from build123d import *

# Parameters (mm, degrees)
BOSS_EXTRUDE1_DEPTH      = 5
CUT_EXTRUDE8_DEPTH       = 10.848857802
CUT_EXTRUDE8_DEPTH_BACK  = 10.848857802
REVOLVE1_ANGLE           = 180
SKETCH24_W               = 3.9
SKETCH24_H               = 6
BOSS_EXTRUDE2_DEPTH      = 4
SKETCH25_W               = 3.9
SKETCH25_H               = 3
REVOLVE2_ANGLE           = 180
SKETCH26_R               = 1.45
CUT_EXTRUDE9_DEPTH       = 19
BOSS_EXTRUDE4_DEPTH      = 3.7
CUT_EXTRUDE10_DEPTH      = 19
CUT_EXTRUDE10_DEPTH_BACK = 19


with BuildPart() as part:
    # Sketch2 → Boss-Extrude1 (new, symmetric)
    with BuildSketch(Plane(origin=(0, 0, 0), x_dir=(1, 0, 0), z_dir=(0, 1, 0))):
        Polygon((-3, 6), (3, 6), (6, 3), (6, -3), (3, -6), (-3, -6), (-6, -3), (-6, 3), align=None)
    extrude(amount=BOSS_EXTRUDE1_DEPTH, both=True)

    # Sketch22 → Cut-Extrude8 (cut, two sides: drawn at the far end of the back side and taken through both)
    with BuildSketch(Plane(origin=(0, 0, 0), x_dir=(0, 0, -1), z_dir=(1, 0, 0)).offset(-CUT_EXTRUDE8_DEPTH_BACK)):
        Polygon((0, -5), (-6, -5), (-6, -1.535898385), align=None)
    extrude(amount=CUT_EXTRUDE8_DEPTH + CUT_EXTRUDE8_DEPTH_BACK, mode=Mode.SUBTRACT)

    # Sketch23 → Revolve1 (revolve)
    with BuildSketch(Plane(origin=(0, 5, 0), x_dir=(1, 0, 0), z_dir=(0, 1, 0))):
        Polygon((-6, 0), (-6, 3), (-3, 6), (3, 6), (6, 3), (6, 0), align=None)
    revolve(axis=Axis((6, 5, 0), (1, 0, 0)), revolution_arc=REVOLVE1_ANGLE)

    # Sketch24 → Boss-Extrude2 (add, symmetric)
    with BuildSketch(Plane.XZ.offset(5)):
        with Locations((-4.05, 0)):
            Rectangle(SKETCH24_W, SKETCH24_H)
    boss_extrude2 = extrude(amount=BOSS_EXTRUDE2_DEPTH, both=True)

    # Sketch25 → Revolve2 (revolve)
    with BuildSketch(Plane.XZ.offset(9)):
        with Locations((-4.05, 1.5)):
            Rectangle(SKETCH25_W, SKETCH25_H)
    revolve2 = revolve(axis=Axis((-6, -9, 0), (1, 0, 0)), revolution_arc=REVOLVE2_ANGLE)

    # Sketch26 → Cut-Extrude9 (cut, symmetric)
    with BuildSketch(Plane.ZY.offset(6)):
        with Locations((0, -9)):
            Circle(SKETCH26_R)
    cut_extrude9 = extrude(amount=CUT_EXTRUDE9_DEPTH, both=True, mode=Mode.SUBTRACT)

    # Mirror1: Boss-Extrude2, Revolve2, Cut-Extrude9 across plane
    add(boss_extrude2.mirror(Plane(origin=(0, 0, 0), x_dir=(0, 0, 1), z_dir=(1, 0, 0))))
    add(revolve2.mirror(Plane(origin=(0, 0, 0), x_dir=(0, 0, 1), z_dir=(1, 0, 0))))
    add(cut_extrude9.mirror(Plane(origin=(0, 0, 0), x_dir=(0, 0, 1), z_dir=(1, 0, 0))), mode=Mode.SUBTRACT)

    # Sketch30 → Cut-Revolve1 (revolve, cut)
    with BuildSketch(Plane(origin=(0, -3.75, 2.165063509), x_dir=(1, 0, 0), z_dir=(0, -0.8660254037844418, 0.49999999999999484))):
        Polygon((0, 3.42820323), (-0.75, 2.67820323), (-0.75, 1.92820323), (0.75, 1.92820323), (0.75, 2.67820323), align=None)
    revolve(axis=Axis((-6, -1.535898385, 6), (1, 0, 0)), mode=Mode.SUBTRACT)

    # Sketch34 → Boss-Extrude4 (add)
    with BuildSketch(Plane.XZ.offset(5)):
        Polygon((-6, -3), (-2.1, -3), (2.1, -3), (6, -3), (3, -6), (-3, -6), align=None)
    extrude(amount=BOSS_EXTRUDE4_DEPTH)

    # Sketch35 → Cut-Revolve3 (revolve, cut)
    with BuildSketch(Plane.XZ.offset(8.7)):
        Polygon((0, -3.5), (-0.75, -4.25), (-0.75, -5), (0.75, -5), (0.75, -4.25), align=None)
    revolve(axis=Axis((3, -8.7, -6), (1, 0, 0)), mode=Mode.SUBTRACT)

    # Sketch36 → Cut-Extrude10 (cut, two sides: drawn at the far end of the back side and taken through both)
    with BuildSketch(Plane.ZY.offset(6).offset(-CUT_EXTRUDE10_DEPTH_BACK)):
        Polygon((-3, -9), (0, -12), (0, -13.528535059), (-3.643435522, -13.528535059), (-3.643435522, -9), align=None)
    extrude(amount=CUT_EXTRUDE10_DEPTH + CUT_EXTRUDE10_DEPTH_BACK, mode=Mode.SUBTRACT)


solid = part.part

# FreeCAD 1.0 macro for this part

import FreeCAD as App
import Part
import Sketcher

V = App.Vector
Q = App.Units.Quantity


def add_polygon(sketch, points):
    """Adds a closed chain of lines whose ends are joined by coincident constraints."""
    first, n = sketch.GeometryCount, len(points)
    for a, b in zip(points, points[1:] + points[:1]):
        sketch.addGeometry(Part.LineSegment(App.Vector(*a, 0), App.Vector(*b, 0)), False)
    for i in range(n):
        sketch.addConstraint(Sketcher.Constraint("Coincident", first + i, 2, first + (i + 1) % n, 1))

doc = App.newDocument("Part")
params = doc.addObject("Spreadsheet::Sheet", "Params")
for row, (alias, value) in enumerate([
    ("sketch1_width", "6 mm"),
    ("pad1_length", "10 mm"),
    ("sketch2_height", "6 mm"),
    ("sketch3_width", "12 mm"),
    ("sketch3_width2", "6 mm"),
    ("sketch3_height", "3 mm"),
    ("revolution_angle", "180 deg"),
    ("sketch4_height", "6 mm"),
    ("sketch4_width", "3.9 mm"),
    ("pad2_length", "8 mm"),
    ("sketch5_height", "3 mm"),
    ("sketch5_width", "3.9 mm"),
    ("revolution2_angle", "180 deg"),
    ("sketch6_diameter", "2.9 mm"),
    ("pocket2_length", "38 mm"),
    ("sketch7_width", "1.5 mm"),
    ("sketch7_height", "0.75 mm"),
    ("groove_angle", "360 deg"),
    ("sketch8_width", "12 mm"),
    ("sketch8_width2", "6 mm"),
    ("pad3_length", "3.7 mm"),
    ("sketch9_width", "1.5 mm"),
    ("sketch9_height", "0.75 mm"),
    ("groove2_angle", "360 deg"),
], start=1):
    params.set(f"A{row}", alias)
    params.set(f"B{row}", "=" + value)
    params.setAlias(f"B{row}", alias)

body = doc.addObject("PartDesign::Body", "Body")

sketch1 = doc.addObject("Sketcher::SketchObject", "Sketch")
body.addObject(sketch1)
sketch1.AttachmentSupport = (doc.XZ_Plane, [""])
sketch1.MapMode = "FlatFace"
add_polygon(sketch1, [(3, -6), (-3, -6), (-6, -3), (-6, 3), (-3, 6), (3, 6), (6, 3), (6, -3)])
sketch1.addConstraint(Sketcher.Constraint("Horizontal", 0))
sketch1.addConstraint(Sketcher.Constraint("Vertical", 2))
sketch1.addConstraint(Sketcher.Constraint("Horizontal", 4))
sketch1.addConstraint(Sketcher.Constraint("Vertical", 6))
sketch1.addConstraint(Sketcher.Constraint("Symmetric", 0, 2, 4, 2, -1, 1))
sketch1.addConstraint(Sketcher.Constraint("Symmetric", 1, 2, 5, 2, -1, 1))
sketch1.addConstraint(Sketcher.Constraint("Perpendicular", 1, 3))
sketch1.addConstraint(Sketcher.Constraint("Perpendicular", 5, 7))
sketch1.addConstraint(Sketcher.Constraint("Horizontal", 2, 2, 5, 2))
sketch1.addConstraint(Sketcher.Constraint("Horizontal", 1, 2, 6, 2))
sketch1.addConstraint(Sketcher.Constraint("Vertical", 0, 2, 3, 2))
sketch1.addConstraint(Sketcher.Constraint("Equal", 4, 2))
sketch1.addConstraint(Sketcher.Constraint("DistanceX", 0, 2, 0, 1, Q("6 mm")))
sketch1.addConstraint(Sketcher.Constraint("DistanceY", 0, 2, -1, 1, Q("6 mm")))
sketch1.setExpression("Constraints[20]", "Params.sketch1_width")
pad1 = doc.addObject("PartDesign::Pad", "Pad")
body.addObject(pad1)
pad1.Profile = sketch1
pad1.setExpression("Length", "Params.pad1_length")
pad1.Midplane = True

sketch2 = doc.addObject("Sketcher::SketchObject", "Sketch001")
body.addObject(sketch2)
sketch2.AttachmentSupport = (doc.YZ_Plane, [""])
sketch2.MapMode = "FlatFace"
add_polygon(sketch2, [(-5, 6), (-5, 0), (-1.535898, 6)])
sketch2.addConstraint(Sketcher.Constraint("Vertical", 0))
sketch2.addConstraint(Sketcher.Constraint("Horizontal", 2))
sketch2.addConstraint(Sketcher.Constraint("PointOnObject", 0, 2, -1))
sketch2.addConstraint(Sketcher.Constraint("DistanceY", 0, 2, 0, 1, Q("6 mm")))
sketch2.addConstraint(Sketcher.Constraint("Angle", 1, Q("60 deg")))
sketch2.addConstraint(Sketcher.Constraint("DistanceX", 0, 2, -1, 1, Q("5 mm")))
sketch2.setExpression("Constraints[6]", "Params.sketch2_height")
pocket1 = doc.addObject("PartDesign::Pocket", "Pocket")
body.addObject(pocket1)
pocket1.Profile = sketch2
pocket1.Type = "ThroughAll"
pocket1.Midplane = True

sketch3 = doc.addObject("Sketcher::SketchObject", "Sketch002")
body.addObject(sketch3)
sketch3.AttachmentSupport = (doc.XZ_Plane, [""])
sketch3.MapMode = "FlatFace"
sketch3.AttachmentOffset = App.Placement(V(0, 0, -5), App.Rotation())
add_polygon(sketch3, [(-6, -3), (-6, 0), (6, 0), (6, -3), (3, -6), (-3, -6)])
sketch3.addConstraint(Sketcher.Constraint("Vertical", 0))
sketch3.addConstraint(Sketcher.Constraint("Horizontal", 1))
sketch3.addConstraint(Sketcher.Constraint("Vertical", 2))
sketch3.addConstraint(Sketcher.Constraint("Horizontal", 4))
sketch3.addConstraint(Sketcher.Constraint("Symmetric", 0, 2, 1, 2, -1, 1))
sketch3.addConstraint(Sketcher.Constraint("Perpendicular", 3, 5))
sketch3.addConstraint(Sketcher.Constraint("Horizontal", 2, 2, 5, 2))
sketch3.addConstraint(Sketcher.Constraint("Equal", 3, 5))
sketch3.addConstraint(Sketcher.Constraint("DistanceX", 1, 1, 1, 2, Q("12 mm")))
sketch3.addConstraint(Sketcher.Constraint("DistanceX", 4, 2, 4, 1, Q("6 mm")))
sketch3.addConstraint(Sketcher.Constraint("DistanceY", 0, 1, 0, 2, Q("3 mm")))
sketch3.setExpression("Constraints[14]", "Params.sketch3_width")
sketch3.setExpression("Constraints[15]", "Params.sketch3_width2")
sketch3.setExpression("Constraints[16]", "Params.sketch3_height")
revolution = doc.addObject("PartDesign::Revolution", "Revolution")
body.addObject(revolution)
revolution.Profile = sketch3
revolution.ReferenceAxis = (sketch3, ["H_Axis"])
revolution.setExpression("Angle", "Params.revolution_angle")

sketch4 = doc.addObject("Sketcher::SketchObject", "Sketch003")
body.addObject(sketch4)
sketch4.AttachmentSupport = (doc.XZ_Plane, [""])
sketch4.MapMode = "FlatFace"
sketch4.AttachmentOffset = App.Placement(V(0, 0, 5), App.Rotation())
add_polygon(sketch4, [(-6, 3), (-6, -3), (-2.1, -3), (-2.1, 3)])
sketch4.addConstraint(Sketcher.Constraint("Vertical", 0))
sketch4.addConstraint(Sketcher.Constraint("Horizontal", 1))
sketch4.addConstraint(Sketcher.Constraint("Vertical", 2))
sketch4.addConstraint(Sketcher.Constraint("Horizontal", 3))
sketch4.addConstraint(Sketcher.Constraint("DistanceY", 0, 2, 0, 1, Q("6 mm")))
sketch4.addConstraint(Sketcher.Constraint("DistanceX", 1, 1, 1, 2, Q("3.9 mm")))
sketch4.addConstraint(Sketcher.Constraint("DistanceX", 0, 2, -1, 1, Q("6 mm")))
sketch4.addConstraint(Sketcher.Constraint("DistanceY", 0, 2, -1, 1, Q("3 mm")))
sketch4.setExpression("Constraints[8]", "Params.sketch4_height")
sketch4.setExpression("Constraints[9]", "Params.sketch4_width")
pad2 = doc.addObject("PartDesign::Pad", "Pad001")
body.addObject(pad2)
pad2.Profile = sketch4
pad2.setExpression("Length", "Params.pad2_length")
pad2.Midplane = True

sketch5 = doc.addObject("Sketcher::SketchObject", "Sketch004")
body.addObject(sketch5)
sketch5.AttachmentSupport = (doc.XZ_Plane, [""])
sketch5.MapMode = "FlatFace"
sketch5.AttachmentOffset = App.Placement(V(0, 0, 9), App.Rotation())
add_polygon(sketch5, [(-6, 3), (-6, 0), (-2.1, 0), (-2.1, 3)])
sketch5.addConstraint(Sketcher.Constraint("Vertical", 0))
sketch5.addConstraint(Sketcher.Constraint("Horizontal", 1))
sketch5.addConstraint(Sketcher.Constraint("Vertical", 2))
sketch5.addConstraint(Sketcher.Constraint("Horizontal", 3))
sketch5.addConstraint(Sketcher.Constraint("PointOnObject", 0, 2, -1))
sketch5.addConstraint(Sketcher.Constraint("DistanceY", 0, 2, 0, 1, Q("3 mm")))
sketch5.addConstraint(Sketcher.Constraint("DistanceX", 1, 1, 1, 2, Q("3.9 mm")))
sketch5.addConstraint(Sketcher.Constraint("DistanceX", 0, 2, -1, 1, Q("6 mm")))
sketch5.setExpression("Constraints[9]", "Params.sketch5_height")
sketch5.setExpression("Constraints[10]", "Params.sketch5_width")
revolution2 = doc.addObject("PartDesign::Revolution", "Revolution001")
body.addObject(revolution2)
revolution2.Profile = sketch5
revolution2.ReferenceAxis = (sketch5, ["H_Axis"])
revolution2.setExpression("Angle", "Params.revolution2_angle")

sketch6 = doc.addObject("Sketcher::SketchObject", "Sketch005")
body.addObject(sketch6)
sketch6.AttachmentSupport = (doc.YZ_Plane, [""])
sketch6.MapMode = "FlatFace"
sketch6.AttachmentOffset = App.Placement(V(0, 0, -6), App.Rotation())
sketch6.addGeometry(Part.Circle(V(-9, 0, 0), V(0, 0, 1), 1.45), False)
sketch6.addConstraint(Sketcher.Constraint("PointOnObject", 0, 3, -1))
sketch6.addConstraint(Sketcher.Constraint("Diameter", 0, Q("2.9 mm")))
sketch6.addConstraint(Sketcher.Constraint("DistanceX", 0, 3, -1, 1, Q("9 mm")))
sketch6.setExpression("Constraints[1]", "Params.sketch6_diameter")
pocket2 = doc.addObject("PartDesign::Pocket", "Pocket001")
body.addObject(pocket2)
pocket2.Profile = sketch6
pocket2.setExpression("Length", "Params.pocket2_length")
pocket2.Midplane = True
doc.recompute()

mirrored = doc.addObject("PartDesign::Mirrored", "Mirrored")
body.addObject(mirrored)
mirrored.Originals = [pad2, revolution2, pocket2]
mirrored.MirrorPlane = (doc.YZ_Plane, [""])
body.Tip = mirrored

sketch7 = doc.addObject("Sketcher::SketchObject", "Sketch006")
body.addObject(sketch7)
sketch7.Placement = App.Placement(V(0, -3.75, 2.165064), App.Rotation(V(1, 0, 0), V(0, 0.5, 0.866025404), V(0, -0.866025404, 0.5), "ZXY"))
add_polygon(sketch7, [(0, 3.428203), (-0.75, 2.678203), (-0.75, 1.928203), (0.75, 1.928203), (0.75, 2.678203)])
sketch7.addGeometry(Part.LineSegment(V(-0.75, 4.428203, 0), V(0.75, 4.428203, 0)), True)
sketch7.addConstraint(Sketcher.Constraint("Vertical", 1))
sketch7.addConstraint(Sketcher.Constraint("Horizontal", 2))
sketch7.addConstraint(Sketcher.Constraint("Vertical", 3))
sketch7.addConstraint(Sketcher.Constraint("Horizontal", 5))
sketch7.addConstraint(Sketcher.Constraint("Symmetric", 0, 2, 3, 2, -2))
sketch7.addConstraint(Sketcher.Constraint("PointOnObject", 4, 2, -2))
sketch7.addConstraint(Sketcher.Constraint("Perpendicular", 0, 4))
sketch7.addConstraint(Sketcher.Constraint("Vertical", 1, 2, 5, 1))
sketch7.addConstraint(Sketcher.Constraint("Vertical", 3, 2, 5, 2))
sketch7.addConstraint(Sketcher.Constraint("DistanceX", 2, 1, 2, 2, Q("1.5 mm")))
sketch7.addConstraint(Sketcher.Constraint("DistanceY", 4, 2, 5, 1, Q("1 mm")))
sketch7.addConstraint(Sketcher.Constraint("DistanceY", 1, 2, 1, 1, Q("0.75 mm")))
sketch7.addConstraint(Sketcher.Constraint("DistanceY", -1, 1, 0, 2, Q("2.678203 mm")))
sketch7.setExpression("Constraints[14]", "Params.sketch7_width")
sketch7.setExpression("Constraints[16]", "Params.sketch7_height")
groove = doc.addObject("PartDesign::Groove", "Groove")
body.addObject(groove)
groove.Profile = sketch7
groove.ReferenceAxis = (sketch7, ["Axis0"])
groove.setExpression("Angle", "Params.groove_angle")

sketch8 = doc.addObject("Sketcher::SketchObject", "Sketch007")
body.addObject(sketch8)
sketch8.AttachmentSupport = (doc.XZ_Plane, [""])
sketch8.MapMode = "FlatFace"
sketch8.AttachmentOffset = App.Placement(V(0, 0, 5), App.Rotation())
add_polygon(sketch8, [(6, -3), (-6, -3), (-3, -6), (3, -6)])
sketch8.addConstraint(Sketcher.Constraint("Horizontal", 0))
sketch8.addConstraint(Sketcher.Constraint("Horizontal", 2))
sketch8.addConstraint(Sketcher.Constraint("Perpendicular", 1, 3))
sketch8.addConstraint(Sketcher.Constraint("Equal", 1, 3))
sketch8.addConstraint(Sketcher.Constraint("DistanceX", 0, 2, 0, 1, Q("12 mm")))
sketch8.addConstraint(Sketcher.Constraint("DistanceX", 2, 1, 2, 2, Q("6 mm")))
sketch8.addConstraint(Sketcher.Constraint("DistanceX", 0, 2, -1, 1, Q("6 mm")))
sketch8.addConstraint(Sketcher.Constraint("DistanceY", 0, 2, -1, 1, Q("3 mm")))
sketch8.setExpression("Constraints[8]", "Params.sketch8_width")
sketch8.setExpression("Constraints[9]", "Params.sketch8_width2")
pad3 = doc.addObject("PartDesign::Pad", "Pad002")
body.addObject(pad3)
pad3.Profile = sketch8
pad3.setExpression("Length", "Params.pad3_length")

sketch9 = doc.addObject("Sketcher::SketchObject", "Sketch008")
body.addObject(sketch9)
sketch9.AttachmentSupport = (doc.XZ_Plane, [""])
sketch9.MapMode = "FlatFace"
sketch9.AttachmentOffset = App.Placement(V(0, 0, 8.7), App.Rotation())
add_polygon(sketch9, [(0, -3.5), (-0.75, -4.25), (-0.75, -5), (0.75, -5), (0.75, -4.25)])
sketch9.addGeometry(Part.LineSegment(V(-0.75, -6, 0), V(0.75, -6, 0)), True)
sketch9.addConstraint(Sketcher.Constraint("Vertical", 1))
sketch9.addConstraint(Sketcher.Constraint("Horizontal", 2))
sketch9.addConstraint(Sketcher.Constraint("Vertical", 3))
sketch9.addConstraint(Sketcher.Constraint("Horizontal", 5))
sketch9.addConstraint(Sketcher.Constraint("Symmetric", 0, 2, 3, 2, -2))
sketch9.addConstraint(Sketcher.Constraint("PointOnObject", 4, 2, -2))
sketch9.addConstraint(Sketcher.Constraint("Perpendicular", 0, 4))
sketch9.addConstraint(Sketcher.Constraint("Vertical", 1, 2, 5, 1))
sketch9.addConstraint(Sketcher.Constraint("Vertical", 3, 2, 5, 2))
sketch9.addConstraint(Sketcher.Constraint("DistanceX", 2, 1, 2, 2, Q("1.5 mm")))
sketch9.addConstraint(Sketcher.Constraint("DistanceY", 1, 2, -1, 1, Q("5 mm")))
sketch9.addConstraint(Sketcher.Constraint("DistanceY", 5, 1, -1, 1, Q("6 mm")))
sketch9.addConstraint(Sketcher.Constraint("DistanceY", 1, 2, 1, 1, Q("0.75 mm")))
sketch9.setExpression("Constraints[14]", "Params.sketch9_width")
sketch9.setExpression("Constraints[17]", "Params.sketch9_height")
groove2 = doc.addObject("PartDesign::Groove", "Groove001")
body.addObject(groove2)
groove2.Profile = sketch9
groove2.ReferenceAxis = (sketch9, ["Axis0"])
groove2.setExpression("Angle", "Params.groove2_angle")

sketch10 = doc.addObject("Sketcher::SketchObject", "Sketch009")
body.addObject(sketch10)
sketch10.AttachmentSupport = (doc.YZ_Plane, [""])
sketch10.MapMode = "FlatFace"
sketch10.AttachmentOffset = App.Placement(V(0, 0, -6), App.Rotation())
add_polygon(sketch10, [(-12, 0), (-9, -3), (-9, -3.643436), (-13.528535, -3.643436), (-13.528535, 0)])
sketch10.addConstraint(Sketcher.Constraint("Vertical", 1))
sketch10.addConstraint(Sketcher.Constraint("Horizontal", 2))
sketch10.addConstraint(Sketcher.Constraint("Vertical", 3))
sketch10.addConstraint(Sketcher.Constraint("Horizontal", 4))
sketch10.addConstraint(Sketcher.Constraint("PointOnObject", 3, 2, -1))
sketch10.addConstraint(Sketcher.Constraint("Angle", 0, Q("-45 deg")))
sketch10.addConstraint(Sketcher.Constraint("DistanceX", 0, 2, -1, 1, Q("9 mm")))
sketch10.addConstraint(Sketcher.Constraint("DistanceY", 0, 2, -1, 1, Q("3 mm")))
sketch10.addConstraint(Sketcher.Constraint("DistanceX", 2, 2, 2, 1, Q("4.528535 mm")))
sketch10.addConstraint(Sketcher.Constraint("DistanceY", 1, 2, 1, 1, Q("0.643436 mm")))
pocket3 = doc.addObject("PartDesign::Pocket", "Pocket002")
body.addObject(pocket3)
pocket3.Profile = sketch10
pocket3.Type = "ThroughAll"
pocket3.Midplane = True

doc.recompute()
